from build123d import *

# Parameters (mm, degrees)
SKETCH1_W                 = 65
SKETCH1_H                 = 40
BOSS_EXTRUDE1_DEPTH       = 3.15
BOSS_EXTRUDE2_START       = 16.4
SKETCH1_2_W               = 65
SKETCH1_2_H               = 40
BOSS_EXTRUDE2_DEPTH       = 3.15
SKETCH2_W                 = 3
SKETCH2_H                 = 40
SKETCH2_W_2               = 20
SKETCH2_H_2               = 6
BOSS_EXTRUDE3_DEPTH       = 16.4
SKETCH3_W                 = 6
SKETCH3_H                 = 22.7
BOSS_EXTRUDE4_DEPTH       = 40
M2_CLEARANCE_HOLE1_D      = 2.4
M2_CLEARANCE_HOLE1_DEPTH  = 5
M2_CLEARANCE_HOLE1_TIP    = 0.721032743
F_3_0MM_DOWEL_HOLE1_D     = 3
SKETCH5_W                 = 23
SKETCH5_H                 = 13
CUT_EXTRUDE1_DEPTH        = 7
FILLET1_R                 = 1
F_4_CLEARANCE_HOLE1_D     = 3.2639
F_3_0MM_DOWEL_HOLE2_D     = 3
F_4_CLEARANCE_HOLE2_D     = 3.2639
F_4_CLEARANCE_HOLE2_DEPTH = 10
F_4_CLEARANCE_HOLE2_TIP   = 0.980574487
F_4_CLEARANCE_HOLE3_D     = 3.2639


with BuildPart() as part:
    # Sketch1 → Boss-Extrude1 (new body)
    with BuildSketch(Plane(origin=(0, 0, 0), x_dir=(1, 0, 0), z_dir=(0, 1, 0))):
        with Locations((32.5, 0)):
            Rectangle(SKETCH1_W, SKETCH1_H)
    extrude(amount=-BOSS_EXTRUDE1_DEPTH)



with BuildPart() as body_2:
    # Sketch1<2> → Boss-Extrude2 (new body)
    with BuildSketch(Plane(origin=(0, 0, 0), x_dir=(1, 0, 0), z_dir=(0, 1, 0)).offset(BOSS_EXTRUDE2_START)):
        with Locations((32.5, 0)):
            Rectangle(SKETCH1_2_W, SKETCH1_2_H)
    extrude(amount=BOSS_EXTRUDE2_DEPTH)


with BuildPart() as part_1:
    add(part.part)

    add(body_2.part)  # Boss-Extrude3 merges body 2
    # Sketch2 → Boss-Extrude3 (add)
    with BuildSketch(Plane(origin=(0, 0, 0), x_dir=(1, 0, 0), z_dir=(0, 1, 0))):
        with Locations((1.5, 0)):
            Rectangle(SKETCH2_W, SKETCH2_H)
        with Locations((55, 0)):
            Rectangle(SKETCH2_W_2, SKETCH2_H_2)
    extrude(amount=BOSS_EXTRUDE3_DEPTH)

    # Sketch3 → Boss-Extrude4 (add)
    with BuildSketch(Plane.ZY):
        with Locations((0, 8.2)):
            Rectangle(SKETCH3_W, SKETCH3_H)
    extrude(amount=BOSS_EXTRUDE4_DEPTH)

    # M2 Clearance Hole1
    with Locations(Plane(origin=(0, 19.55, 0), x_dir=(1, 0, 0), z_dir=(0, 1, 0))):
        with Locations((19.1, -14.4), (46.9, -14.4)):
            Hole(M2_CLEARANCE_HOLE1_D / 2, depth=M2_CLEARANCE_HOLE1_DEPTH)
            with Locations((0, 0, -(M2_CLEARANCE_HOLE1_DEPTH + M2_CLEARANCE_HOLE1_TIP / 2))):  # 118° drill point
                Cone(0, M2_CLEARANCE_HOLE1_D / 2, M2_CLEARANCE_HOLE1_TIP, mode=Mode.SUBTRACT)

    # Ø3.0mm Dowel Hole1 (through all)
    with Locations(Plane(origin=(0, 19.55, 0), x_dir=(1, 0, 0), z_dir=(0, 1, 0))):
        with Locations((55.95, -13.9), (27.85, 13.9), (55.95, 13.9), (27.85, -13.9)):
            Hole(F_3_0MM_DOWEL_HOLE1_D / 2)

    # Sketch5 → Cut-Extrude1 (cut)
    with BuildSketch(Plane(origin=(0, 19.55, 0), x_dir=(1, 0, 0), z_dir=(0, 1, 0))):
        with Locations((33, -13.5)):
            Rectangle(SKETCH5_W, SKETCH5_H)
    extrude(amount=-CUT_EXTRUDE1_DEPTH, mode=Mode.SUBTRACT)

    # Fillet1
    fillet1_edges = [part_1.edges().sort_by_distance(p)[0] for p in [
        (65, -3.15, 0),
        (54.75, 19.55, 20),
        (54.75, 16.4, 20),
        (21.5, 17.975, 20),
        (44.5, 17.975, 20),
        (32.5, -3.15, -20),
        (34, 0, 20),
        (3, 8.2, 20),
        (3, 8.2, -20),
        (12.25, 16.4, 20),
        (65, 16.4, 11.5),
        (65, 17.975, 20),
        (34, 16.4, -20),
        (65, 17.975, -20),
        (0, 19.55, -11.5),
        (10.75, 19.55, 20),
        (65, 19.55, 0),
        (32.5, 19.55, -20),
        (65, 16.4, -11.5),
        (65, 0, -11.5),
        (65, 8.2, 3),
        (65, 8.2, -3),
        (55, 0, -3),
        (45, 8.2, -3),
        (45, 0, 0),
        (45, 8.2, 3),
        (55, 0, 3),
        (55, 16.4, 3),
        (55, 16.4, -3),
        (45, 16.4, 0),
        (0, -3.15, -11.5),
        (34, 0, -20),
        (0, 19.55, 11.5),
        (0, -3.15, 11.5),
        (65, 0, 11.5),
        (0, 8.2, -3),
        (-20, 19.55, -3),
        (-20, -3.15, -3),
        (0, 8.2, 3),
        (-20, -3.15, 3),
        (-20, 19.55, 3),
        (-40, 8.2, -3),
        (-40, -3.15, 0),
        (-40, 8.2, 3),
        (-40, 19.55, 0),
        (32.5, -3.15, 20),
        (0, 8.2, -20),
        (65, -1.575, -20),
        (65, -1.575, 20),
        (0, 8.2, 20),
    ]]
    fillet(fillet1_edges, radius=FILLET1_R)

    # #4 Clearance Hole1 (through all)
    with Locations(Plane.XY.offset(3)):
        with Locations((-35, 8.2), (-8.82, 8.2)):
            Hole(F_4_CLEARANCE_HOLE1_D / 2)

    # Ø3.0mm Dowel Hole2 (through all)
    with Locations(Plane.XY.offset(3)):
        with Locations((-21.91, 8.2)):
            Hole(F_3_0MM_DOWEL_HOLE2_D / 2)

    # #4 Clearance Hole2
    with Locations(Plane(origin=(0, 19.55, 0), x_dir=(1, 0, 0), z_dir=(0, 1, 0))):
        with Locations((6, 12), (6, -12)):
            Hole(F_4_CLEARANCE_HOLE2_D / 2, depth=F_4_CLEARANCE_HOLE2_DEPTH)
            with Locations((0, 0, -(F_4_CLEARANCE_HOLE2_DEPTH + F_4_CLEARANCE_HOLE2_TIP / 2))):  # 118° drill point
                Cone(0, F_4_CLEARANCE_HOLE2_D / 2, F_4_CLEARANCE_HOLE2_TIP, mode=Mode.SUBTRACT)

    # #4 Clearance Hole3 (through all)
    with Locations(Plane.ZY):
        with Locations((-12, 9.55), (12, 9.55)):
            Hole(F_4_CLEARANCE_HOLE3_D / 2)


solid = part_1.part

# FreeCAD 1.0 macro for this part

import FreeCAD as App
import Part
import Sketcher
from FreeCAD import Vector


def edges_at(feature, points):
    """Names of the edges that pass closest to the given points."""
    edges = feature.Shape.Edges
    near = lambda p: min(range(len(edges)), key=lambda i: edges[i].distToShape(Part.Vertex(*p))[0])
    return sorted({f"Edge{near(p) + 1}" for p in points})


def add_polygon(sketch, points):
    """Adds a closed chain of lines whose ends are joined by coincident constraints."""
    first, n = sketch.GeometryCount, len(points)
    for a, b in zip(points, points[1:] + points[:1]):
        sketch.addGeometry(Part.LineSegment(App.Vector(*a, 0), App.Vector(*b, 0)), False)
    for i in range(n):
        sketch.addConstraint(Sketcher.Constraint("Coincident", first + i, 2, first + (i + 1) % n, 1))

doc = App.newDocument("Part")
params = doc.addObject("Spreadsheet::Sheet", "Params")
for row, (alias, value) in enumerate([
    ("sketch1_width", "65 mm"),
    ("sketch1_height", "40 mm"),
    ("pad1_length", "3.15 mm"),
    ("sketch2_width", "65 mm"),
    ("sketch2_height", "40 mm"),
    ("pad2_length", "3.15 mm"),
    ("sketch3_width", "3 mm"),
    ("sketch3_width2", "20 mm"),
    ("sketch3_height", "40 mm"),
    ("sketch3_height2", "6 mm"),
    ("pad3_length", "16.4 mm"),
    ("sketch4_height", "6 mm"),
    ("sketch4_width", "22.7 mm"),
    ("pad4_length", "40 mm"),
    ("sketch5_diameter", "2.4 mm"),
    ("hole_diameter", "2.4 mm"),
    ("hole_depth", "5 mm"),
    ("sketch6_diameter", "3 mm"),
    ("hole2_diameter", "3 mm"),
    ("sketch7_width", "23 mm"),
    ("sketch7_height", "13 mm"),
    ("pocket1_length", "7 mm"),
    ("fillet_radius", "1 mm"),
    ("hole3_diameter", "3.2639 mm"),
    ("sketch9_diameter", "3 mm"),
    ("hole4_diameter", "3 mm"),
    ("hole5_diameter", "3.2639 mm"),
    ("hole5_depth", "10 mm"),
    ("hole6_diameter", "3.2639 mm"),
], start=1):
    params.set(f"A{row}", alias)
    params.set(f"B{row}", "=" + value)
    params.setAlias(f"B{row}", alias)

body = doc.addObject("PartDesign::Body", "Body")

sketch1 = body.newObject("Sketcher::SketchObject", "Sketch")
sketch1.AttachmentSupport = (doc.getObject("XZ_Plane"), [""])
sketch1.MapMode = "FlatFace"
add_polygon(sketch1, [(0, -20), (0, 20), (65, 20), (65, -20)])
sketch1.addConstraint([
    Sketcher.Constraint("Vertical", 0),
    Sketcher.Constraint("Horizontal", 1),
    Sketcher.Constraint("Vertical", 2),
    Sketcher.Constraint("Horizontal", 3),
    Sketcher.Constraint("Symmetric", 0, 2, 3, 2, -1, 1),
    Sketcher.Constraint("DistanceX", 1, 1, 1, 2, 65.0),
    Sketcher.Constraint("DistanceY", 0, 1, 0, 2, 40.0),
])
sketch1.setExpression("Constraints[9]", "Params.sketch1_width")
sketch1.setExpression("Constraints[10]", "Params.sketch1_height")
pad1 = body.newObject("PartDesign::Pad", "Pad")
pad1.Profile = sketch1
pad1.setExpression("Length", "Params.pad1_length")
body2 = doc.addObject("PartDesign::Body", "Body001")

sketch2 = body2.newObject("Sketcher::SketchObject", "Sketch001")
sketch2.AttachmentSupport = (doc.getObject("XZ_Plane001"), [""])
sketch2.MapMode = "FlatFace"
sketch2.AttachmentOffset = App.Placement(Vector(0, 0, -16.4), App.Rotation())
add_polygon(sketch2, [(0, -20), (0, 20), (65, 20), (65, -20)])
sketch2.addConstraint([
    Sketcher.Constraint("Vertical", 0),
    Sketcher.Constraint("Horizontal", 1),
    Sketcher.Constraint("Vertical", 2),
    Sketcher.Constraint("Horizontal", 3),
    Sketcher.Constraint("Symmetric", 0, 2, 3, 2, -1, 1),
    Sketcher.Constraint("DistanceX", 1, 1, 1, 2, 65.0),
    Sketcher.Constraint("DistanceY", 0, 1, 0, 2, 40.0),
])
sketch2.setExpression("Constraints[9]", "Params.sketch2_width")
sketch2.setExpression("Constraints[10]", "Params.sketch2_height")
pad2 = body2.newObject("PartDesign::Pad", "Pad001")
pad2.Profile = sketch2
pad2.setExpression("Length", "Params.pad2_length")
pad2.Reversed = True
body.AllowCompound = True
doc.recompute()

boolean = body.newObject("PartDesign::Boolean", "Boolean")
boolean.Type = "Fuse"
boolean.addObjects([body2])

sketch3 = body.newObject("Sketcher::SketchObject", "Sketch002")
sketch3.AttachmentSupport = (doc.getObject("XZ_Plane"), [""])
sketch3.MapMode = "FlatFace"
add_polygon(sketch3, [(0, -20), (0, 20), (3, 20), (3, -20)])
add_polygon(sketch3, [(45, -3), (45, 3), (65, 3), (65, -3)])
sketch3.addConstraint([
    Sketcher.Constraint("Vertical", 0),
    Sketcher.Constraint("Horizontal", 1),
    Sketcher.Constraint("Vertical", 2),
    Sketcher.Constraint("Horizontal", 3),
    Sketcher.Constraint("Vertical", 4),
    Sketcher.Constraint("Horizontal", 5),
    Sketcher.Constraint("Vertical", 6),
    Sketcher.Constraint("Horizontal", 7),
    Sketcher.Constraint("Symmetric", 0, 2, 3, 2, -1, 1),
    Sketcher.Constraint("DistanceX", 1, 1, 1, 2, 3.0),
    Sketcher.Constraint("DistanceX", 5, 1, 5, 2, 20.0),
    Sketcher.Constraint("DistanceY", 0, 1, 0, 2, 40.0),
    Sketcher.Constraint("DistanceY", 4, 1, 4, 2, 6.0),
    Sketcher.Constraint("DistanceX", -1, 1, 4, 2, 45.0),
    Sketcher.Constraint("DistanceY", -1, 1, 4, 2, 3.0),
])
sketch3.setExpression("Constraints[17]", "Params.sketch3_width")
sketch3.setExpression("Constraints[18]", "Params.sketch3_width2")
sketch3.setExpression("Constraints[19]", "Params.sketch3_height")
sketch3.setExpression("Constraints[20]", "Params.sketch3_height2")
pad3 = body.newObject("PartDesign::Pad", "Pad002")
pad3.Profile = sketch3
pad3.setExpression("Length", "Params.pad3_length")
pad3.Reversed = True

sketch4 = body.newObject("Sketcher::SketchObject", "Sketch003")
sketch4.AttachmentSupport = (doc.getObject("YZ_Plane"), [""])
sketch4.MapMode = "FlatFace"
add_polygon(sketch4, [(19.55, -3), (-3.15, -3), (-3.15, 3), (19.55, 3)])
sketch4.addConstraint([
    Sketcher.Constraint("Horizontal", 0),
    Sketcher.Constraint("Vertical", 1),
    Sketcher.Constraint("Horizontal", 2),
    Sketcher.Constraint("Vertical", 3),
    Sketcher.Constraint("DistanceY", 1, 1, 1, 2, 6.0),
    Sketcher.Constraint("DistanceX", 0, 2, 0, 1, 22.7),
    Sketcher.Constraint("DistanceY", 0, 2, -1, 1, 3.0),
    Sketcher.Constraint("DistanceX", 0, 2, -1, 1, 3.15),
])
sketch4.setExpression("Constraints[8]", "Params.sketch4_height")
sketch4.setExpression("Constraints[9]", "Params.sketch4_width")
pad4 = body.newObject("PartDesign::Pad", "Pad003")
pad4.Profile = sketch4
pad4.setExpression("Length", "Params.pad4_length")
pad4.Reversed = True

sketch5 = body.newObject("Sketcher::SketchObject", "Sketch004")
sketch5.AttachmentSupport = (doc.getObject("XZ_Plane"), [""])
sketch5.MapMode = "FlatFace"
sketch5.AttachmentOffset = App.Placement(Vector(0, 0, -19.55), App.Rotation())
sketch5.addGeometry([
    Part.Circle(Vector(19.1, 14.4, 0), Vector(0, 0, 1), 1.2),
    Part.Circle(Vector(46.9, 14.4, 0), Vector(0, 0, 1), 1.2),
], False)
sketch5.addConstraint([
    Sketcher.Constraint("Equal", 0, 1),
    Sketcher.Constraint("Horizontal", 0, 3, 1, 3),
    Sketcher.Constraint("Diameter", 0, 2.4),
    Sketcher.Constraint("DistanceX", -1, 1, 0, 3, 19.1),
    Sketcher.Constraint("DistanceY", -1, 1, 0, 3, 14.4),
    Sketcher.Constraint("DistanceX", -1, 1, 1, 3, 46.9),
])
sketch5.setExpression("Constraints[2]", "Params.sketch5_diameter")
doc.recompute()
hole = body.newObject("PartDesign::Hole", "Hole")
hole.Profile = sketch5
hole.ThreadType = "None"
hole.setExpression("Diameter", "Params.hole_diameter")
hole.DepthType = "Dimension"
hole.setExpression("Depth", "Params.hole_depth")
hole.DrillPoint = "Angled"
hole.DrillPointAngle = 118
hole.Reversed = True

sketch6 = body.newObject("Sketcher::SketchObject", "Sketch005")
sketch6.AttachmentSupport = (doc.getObject("XZ_Plane"), [""])
sketch6.MapMode = "FlatFace"
sketch6.AttachmentOffset = App.Placement(Vector(0, 0, -19.55), App.Rotation())
sketch6.addGeometry([
    Part.Circle(Vector(55.95, 13.9, 0), Vector(0, 0, 1), 1.5),
    Part.Circle(Vector(27.85, -13.9, 0), Vector(0, 0, 1), 1.5),
    Part.Circle(Vector(55.95, -13.9, 0), Vector(0, 0, 1), 1.5),
    Part.Circle(Vector(27.85, 13.9, 0), Vector(0, 0, 1), 1.5),
], False)
sketch6.addConstraint([
    Sketcher.Constraint("Equal", 0, 1),
    Sketcher.Constraint("Equal", 1, 2),
    Sketcher.Constraint("Equal", 2, 3),
    Sketcher.Constraint("Symmetric", 0, 3, 2, 3, -1),
    Sketcher.Constraint("Symmetric", 1, 3, 3, 3, -1),
    Sketcher.Constraint("Horizontal", 1, 3, 2, 3),
    Sketcher.Constraint("Diameter", 0, 3.0),
    Sketcher.Constraint("DistanceY", -1, 1, 0, 3, 13.9),
    Sketcher.Constraint("DistanceX", 1, 3, 0, 3, 28.1),
    Sketcher.Constraint("DistanceX", -1, 1, 0, 3, 55.95),
])
sketch6.setExpression("Constraints[6]", "Params.sketch6_diameter")
doc.recompute()
hole2 = body.newObject("PartDesign::Hole", "Hole001")
hole2.Profile = sketch6
hole2.ThreadType = "None"
hole2.setExpression("Diameter", "Params.hole2_diameter")
hole2.DepthType = "ThroughAll"
hole2.Reversed = True

sketch7 = body.newObject("Sketcher::SketchObject", "Sketch006")
sketch7.AttachmentSupport = (doc.getObject("XZ_Plane"), [""])
sketch7.MapMode = "FlatFace"
sketch7.AttachmentOffset = App.Placement(Vector(0, 0, -19.55), App.Rotation())
add_polygon(sketch7, [(21.5, 7), (21.5, 20), (44.5, 20), (44.5, 7)])
sketch7.addConstraint([
    Sketcher.Constraint("Vertical", 0),
    Sketcher.Constraint("Horizontal", 1),
    Sketcher.Constraint("Vertical", 2),
    Sketcher.Constraint("Horizontal", 3),
    Sketcher.Constraint("DistanceX", 1, 1, 1, 2, 23.0),
    Sketcher.Constraint("DistanceY", 0, 1, 0, 2, 13.0),
    Sketcher.Constraint("DistanceY", -1, 1, 0, 2, 20.0),
    Sketcher.Constraint("DistanceX", -1, 1, 0, 2, 21.5),
])
sketch7.setExpression("Constraints[8]", "Params.sketch7_width")
sketch7.setExpression("Constraints[9]", "Params.sketch7_height")
pocket1 = body.newObject("PartDesign::Pocket", "Pocket")
pocket1.Profile = sketch7
pocket1.setExpression("Length", "Params.pocket1_length")
pocket1.Reversed = True
doc.recompute()

fillet = body.newObject("PartDesign::Fillet", "Fillet")
fillet.Base = (pocket1, edges_at(pocket1, [
    (65, -3.15, 0),
    (54.75, 19.55, 20),
    (54.75, 16.4, 20),
    (21.5, 17.975, 20),
    (44.5, 17.975, 20),
    (32.5, -3.15, -20),
    (34, 0, 20),
    (3, 8.2, 20),
    (3, 8.2, -20),
    (12.25, 16.4, 20),
    (65, 16.4, 11.5),
    (65, 17.975, 20),
    (34, 16.4, -20),
    (65, 17.975, -20),
    (0, 19.55, -11.5),
    (10.75, 19.55, 20),
    (65, 19.55, 0),
    (32.5, 19.55, -20),
    (65, 16.4, -11.5),
    (65, 0, -11.5),
    (65, 8.2, 3),
    (65, 8.2, -3),
    (55, 0, -3),
    (45, 8.2, -3),
    (45, 0, 0),
    (45, 8.2, 3),
    (55, 0, 3),
    (55, 16.4, 3),
    (55, 16.4, -3),
    (45, 16.4, 0),
    (0, -3.15, -11.5),
    (34, 0, -20),
    (0, 19.55, 11.5),
    (0, -3.15, 11.5),
    (65, 0, 11.5),
    (0, 8.2, -3),
    (-20, 19.55, -3),
    (-20, -3.15, -3),
    (0, 8.2, 3),
    (-20, -3.15, 3),
    (-20, 19.55, 3),
    (-40, 8.2, -3),
    (-40, -3.15, 0),
    (-40, 8.2, 3),
    (-40, 19.55, 0),
    (32.5, -3.15, 20),
    (0, 8.2, -20),
    (65, -1.575, -20),
    (65, -1.575, 20),
    (0, 8.2, 20),
]))
fillet.setExpression("Radius", "Params.fillet_radius")

sketch8 = body.newObject("Sketcher::SketchObject", "Sketch007")
sketch8.AttachmentSupport = (doc.getObject("XY_Plane"), [""])
sketch8.MapMode = "FlatFace"
sketch8.AttachmentOffset = App.Placement(Vector(0, 0, 3), App.Rotation())
sketch8.addGeometry([
    Part.Circle(Vector(-35, 8.2, 0), Vector(0, 0, 1), 1.63195),
    Part.Circle(Vector(-8.82, 8.2, 0), Vector(0, 0, 1), 1.63195),
], False)
sketch8.addConstraint([
    Sketcher.Constraint("Equal", 0, 1),
    Sketcher.Constraint("Horizontal", 0, 3, 1, 3),
    Sketcher.Constraint("DistanceX", 0, 3, -1, 1, 35.0),
    Sketcher.Constraint("Diameter", 0, 3.2639),
    Sketcher.Constraint("DistanceY", -1, 1, 0, 3, 8.2),
    Sketcher.Constraint("DistanceX", 1, 3, -1, 1, 8.82),
])
doc.recompute()
hole3 = body.newObject("PartDesign::Hole", "Hole002")
hole3.Profile = sketch8
hole3.ThreadType = "None"
hole3.setExpression("Diameter", "Params.hole3_diameter")
hole3.DepthType = "ThroughAll"

sketch9 = body.newObject("Sketcher::SketchObject", "Sketch008")
sketch9.AttachmentSupport = (doc.getObject("XY_Plane"), [""])
sketch9.MapMode = "FlatFace"
sketch9.AttachmentOffset = App.Placement(Vector(0, 0, 3), App.Rotation())
sketch9.addGeometry(Part.Circle(Vector(-21.91, 8.2, 0), Vector(0, 0, 1), 1.5), False)
sketch9.addConstraint([
    Sketcher.Constraint("Diameter", 0, 3.0),
    Sketcher.Constraint("DistanceY", -1, 1, 0, 3, 8.2),
    Sketcher.Constraint("DistanceX", 0, 3, -1, 1, 21.91),
])
sketch9.setExpression("Constraints[0]", "Params.sketch9_diameter")
doc.recompute()
hole4 = body.newObject("PartDesign::Hole", "Hole003")
hole4.Profile = sketch9
hole4.ThreadType = "None"
hole4.setExpression("Diameter", "Params.hole4_diameter")
hole4.DepthType = "ThroughAll"

sketch10 = body.newObject("Sketcher::SketchObject", "Sketch009")
sketch10.AttachmentSupport = (doc.getObject("XZ_Plane"), [""])
sketch10.MapMode = "FlatFace"
sketch10.AttachmentOffset = App.Placement(Vector(0, 0, -19.55), App.Rotation())
sketch10.addGeometry([
    Part.Circle(Vector(6, -12, 0), Vector(0, 0, 1), 1.63195),
    Part.Circle(Vector(6, 12, 0), Vector(0, 0, 1), 1.63195),
], False)
sketch10.addConstraint([
    Sketcher.Constraint("Equal", 0, 1),
    Sketcher.Constraint("Symmetric", 0, 3, 1, 3, -1),
    Sketcher.Constraint("DistanceX", -1, 1, 0, 3, 6.0),
    Sketcher.Constraint("DistanceY", 0, 3, -1, 1, 12.0),
    Sketcher.Constraint("Diameter", 0, 3.2639),
])
doc.recompute()
hole5 = body.newObject("PartDesign::Hole", "Hole004")
hole5.Profile = sketch10
hole5.ThreadType = "None"
hole5.setExpression("Diameter", "Params.hole5_diameter")
hole5.DepthType = "Dimension"
hole5.setExpression("Depth", "Params.hole5_depth")
hole5.DrillPoint = "Angled"
hole5.DrillPointAngle = 118
hole5.Reversed = True

sketch11 = body.newObject("Sketcher::SketchObject", "Sketch010")
sketch11.AttachmentSupport = (doc.getObject("YZ_Plane"), [""])
sketch11.MapMode = "FlatFace"
sketch11.addGeometry([
    Part.Circle(Vector(9.55, -12, 0), Vector(0, 0, 1), 1.63195),
    Part.Circle(Vector(9.55, 12, 0), Vector(0, 0, 1), 1.63195),
], False)
sketch11.addConstraint([
    Sketcher.Constraint("Equal", 0, 1),
    Sketcher.Constraint("Symmetric", 0, 3, 1, 3, -1),
    Sketcher.Constraint("DistanceY", 0, 3, -1, 1, 12.0),
    Sketcher.Constraint("Diameter", 0, 3.2639),
    Sketcher.Constraint("DistanceX", -1, 1, 0, 3, 9.55),
])
doc.recompute()
hole6 = body.newObject("PartDesign::Hole", "Hole005")
hole6.Profile = sketch11
hole6.ThreadType = "None"
hole6.setExpression("Diameter", "Params.hole6_diameter")
hole6.DepthType = "ThroughAll"
hole6.Reversed = True

doc.recompute()
